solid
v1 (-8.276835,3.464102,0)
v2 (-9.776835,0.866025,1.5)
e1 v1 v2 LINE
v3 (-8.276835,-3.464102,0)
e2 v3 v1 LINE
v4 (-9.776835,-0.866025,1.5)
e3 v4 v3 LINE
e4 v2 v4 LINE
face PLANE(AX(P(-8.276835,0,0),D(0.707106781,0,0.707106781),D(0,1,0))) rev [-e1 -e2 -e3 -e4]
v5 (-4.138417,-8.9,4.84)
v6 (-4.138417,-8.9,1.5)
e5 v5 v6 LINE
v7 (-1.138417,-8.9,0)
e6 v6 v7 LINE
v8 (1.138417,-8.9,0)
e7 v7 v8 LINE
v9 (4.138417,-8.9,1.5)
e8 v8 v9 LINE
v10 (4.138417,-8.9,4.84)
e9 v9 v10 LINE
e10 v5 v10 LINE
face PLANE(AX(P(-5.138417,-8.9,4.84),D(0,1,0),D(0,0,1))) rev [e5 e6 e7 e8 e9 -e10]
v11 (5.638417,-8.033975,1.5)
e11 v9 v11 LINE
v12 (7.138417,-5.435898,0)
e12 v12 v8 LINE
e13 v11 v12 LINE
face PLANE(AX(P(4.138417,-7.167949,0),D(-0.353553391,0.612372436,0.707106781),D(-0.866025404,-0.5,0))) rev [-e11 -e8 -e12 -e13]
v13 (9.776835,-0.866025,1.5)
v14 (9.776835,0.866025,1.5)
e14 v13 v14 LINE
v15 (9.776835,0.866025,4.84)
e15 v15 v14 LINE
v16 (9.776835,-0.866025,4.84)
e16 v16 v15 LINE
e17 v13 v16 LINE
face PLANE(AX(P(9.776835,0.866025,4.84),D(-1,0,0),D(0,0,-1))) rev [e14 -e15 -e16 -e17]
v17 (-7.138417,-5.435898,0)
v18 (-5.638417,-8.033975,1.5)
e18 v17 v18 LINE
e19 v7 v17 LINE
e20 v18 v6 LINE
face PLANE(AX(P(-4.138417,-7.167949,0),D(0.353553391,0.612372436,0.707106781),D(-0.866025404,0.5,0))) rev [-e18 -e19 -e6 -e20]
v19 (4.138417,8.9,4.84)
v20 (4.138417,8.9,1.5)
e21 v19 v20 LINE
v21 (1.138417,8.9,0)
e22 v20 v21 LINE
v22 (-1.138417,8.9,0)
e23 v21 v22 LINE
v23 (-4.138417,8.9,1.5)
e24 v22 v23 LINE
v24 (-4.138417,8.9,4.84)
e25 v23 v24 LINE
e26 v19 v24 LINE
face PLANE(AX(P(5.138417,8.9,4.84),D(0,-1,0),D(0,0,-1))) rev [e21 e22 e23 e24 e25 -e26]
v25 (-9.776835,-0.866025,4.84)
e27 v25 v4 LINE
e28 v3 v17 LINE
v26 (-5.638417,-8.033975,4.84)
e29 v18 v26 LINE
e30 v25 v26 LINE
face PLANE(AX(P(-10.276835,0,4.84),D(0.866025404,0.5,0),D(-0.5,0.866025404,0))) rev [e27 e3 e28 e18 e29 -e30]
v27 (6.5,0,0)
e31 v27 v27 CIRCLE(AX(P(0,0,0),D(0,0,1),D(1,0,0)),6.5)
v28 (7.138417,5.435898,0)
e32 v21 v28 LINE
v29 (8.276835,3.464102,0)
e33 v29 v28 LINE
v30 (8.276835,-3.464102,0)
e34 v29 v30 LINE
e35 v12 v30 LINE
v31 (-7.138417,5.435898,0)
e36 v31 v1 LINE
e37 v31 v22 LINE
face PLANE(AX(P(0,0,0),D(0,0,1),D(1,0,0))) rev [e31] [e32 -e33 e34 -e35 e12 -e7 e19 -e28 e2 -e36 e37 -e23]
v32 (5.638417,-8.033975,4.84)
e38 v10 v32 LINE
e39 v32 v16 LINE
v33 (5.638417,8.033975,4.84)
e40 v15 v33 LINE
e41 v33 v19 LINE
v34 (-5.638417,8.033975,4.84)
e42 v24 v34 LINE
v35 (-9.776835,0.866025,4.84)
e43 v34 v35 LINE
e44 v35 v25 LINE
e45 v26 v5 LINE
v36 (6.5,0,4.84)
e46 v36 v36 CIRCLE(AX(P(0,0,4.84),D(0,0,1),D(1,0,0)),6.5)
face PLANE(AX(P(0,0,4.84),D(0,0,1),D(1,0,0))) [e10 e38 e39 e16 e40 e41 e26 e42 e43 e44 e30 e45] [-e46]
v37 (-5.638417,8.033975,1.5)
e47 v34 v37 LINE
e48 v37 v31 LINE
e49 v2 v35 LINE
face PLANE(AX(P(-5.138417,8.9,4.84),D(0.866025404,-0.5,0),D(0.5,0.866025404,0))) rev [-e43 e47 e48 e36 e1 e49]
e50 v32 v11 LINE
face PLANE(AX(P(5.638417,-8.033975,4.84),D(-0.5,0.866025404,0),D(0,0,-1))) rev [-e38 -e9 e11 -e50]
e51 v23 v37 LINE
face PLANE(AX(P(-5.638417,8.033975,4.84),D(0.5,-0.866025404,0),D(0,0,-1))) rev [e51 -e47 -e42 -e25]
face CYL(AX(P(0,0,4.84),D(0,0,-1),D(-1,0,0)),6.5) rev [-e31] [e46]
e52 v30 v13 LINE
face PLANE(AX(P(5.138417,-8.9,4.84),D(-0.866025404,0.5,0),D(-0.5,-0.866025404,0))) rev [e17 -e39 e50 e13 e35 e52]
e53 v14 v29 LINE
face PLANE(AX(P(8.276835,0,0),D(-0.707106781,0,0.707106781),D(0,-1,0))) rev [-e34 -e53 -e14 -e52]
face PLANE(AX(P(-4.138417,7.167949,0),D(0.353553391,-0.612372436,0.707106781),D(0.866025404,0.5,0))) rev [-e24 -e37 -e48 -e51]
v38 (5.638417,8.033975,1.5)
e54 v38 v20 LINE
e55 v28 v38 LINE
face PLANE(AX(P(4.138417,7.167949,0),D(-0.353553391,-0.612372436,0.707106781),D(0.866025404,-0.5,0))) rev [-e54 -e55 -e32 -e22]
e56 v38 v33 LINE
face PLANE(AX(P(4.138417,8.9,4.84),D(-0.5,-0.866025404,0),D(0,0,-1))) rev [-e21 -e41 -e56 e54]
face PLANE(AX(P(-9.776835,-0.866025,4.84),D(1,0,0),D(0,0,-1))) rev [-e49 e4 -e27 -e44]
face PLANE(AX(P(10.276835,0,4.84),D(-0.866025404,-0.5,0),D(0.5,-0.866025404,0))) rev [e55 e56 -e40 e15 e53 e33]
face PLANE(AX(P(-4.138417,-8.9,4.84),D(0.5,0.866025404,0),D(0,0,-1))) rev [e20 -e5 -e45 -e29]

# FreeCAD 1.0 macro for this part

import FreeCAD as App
import Part
import Sketcher
from FreeCAD import Vector
Q = App.Units.Quantity


def edges_at(feature, points):
    """Names of the edges that pass closest to the given points."""
    edges = feature.Shape.Edges
    near = lambda p: min(range(len(edges)), key=lambda i: edges[i].distToShape(Part.Vertex(*p))[0])
    return sorted({f"Edge{near(p) + 1}" for p in points})

doc = App.newDocument("Part")
body = doc.addObject("PartDesign::Body", "Body")

sketch1 = body.newObject("Sketcher::SketchObject", "Sketch")
sketch1.AttachmentSupport = (doc.getObject("XY_Plane"), [""])
sketch1.MapMode = "FlatFace"
sketch1.addGeometry([
    Part.LineSegment(Vector(5, 9, 0), Vector(-5, 9, 0)),
    Part.LineSegment(Vector(-5, 9, 0), Vector(-10, 0, 0)),
    Part.LineSegment(Vector(-10, 0, 0), Vector(-5, -9, 0)),
    Part.LineSegment(Vector(-5, -9, 0), Vector(5, -9, 0)),
    Part.LineSegment(Vector(5, -9, 0), Vector(10, 0, 0)),
    Part.LineSegment(Vector(10, 0, 0), Vector(5, 9, 0)),
    Part.Circle(Vector(0, 0, 0), Vector(0, 0, 1), 6),
], False)
sketch1.addConstraint([
    Sketcher.Constraint("Coincident", 0, 2, 1, 1),
    Sketcher.Constraint("Coincident", 1, 2, 2, 1),
    Sketcher.Constraint("Coincident", 2, 2, 3, 1),
    Sketcher.Constraint("Coincident", 3, 2, 4, 1),
    Sketcher.Constraint("Coincident", 4, 2, 5, 1),
    Sketcher.Constraint("Coincident", 5, 2, 0, 1),
    Sketcher.Constraint("Horizontal", 0),
    Sketcher.Constraint("Horizontal", 3),
    Sketcher.Constraint("Coincident", 6, 3, -1, 1),
    Sketcher.Constraint("Symmetric", 0, 2, 3, 2, -1, 1),
    Sketcher.Constraint("Symmetric", 1, 2, 4, 2, -1, 1),
    Sketcher.Constraint("PointOnObject", 1, 2, -1),
    Sketcher.Constraint("Parallel", 2, 5),
    Sketcher.Constraint("Vertical", 0, 2, 2, 2),
    Sketcher.Constraint("Diameter", 6, Q("13 mm")),
    Sketcher.Constraint("Angle", 1, Q("-120 deg")),
    Sketcher.Constraint("DistanceY", -1, 1, 0, 2, Q("8.9 mm")),
    Sketcher.Constraint("DistanceX", 0, 2, 0, 1, Q("10.276835 mm")),
])
pad1 = body.newObject("PartDesign::Pad", "Pad")
pad1.Profile = sketch1
pad1.Length = 4.84
doc.recompute()

chamfer = body.newObject("PartDesign::Chamfer", "Chamfer")
chamfer.Base = (pad1, edges_at(pad1, [
    (10.277, 0, 2.42),
    (5.138, -8.9, 2.42),
    (-5.138, -8.9, 2.42),
    (-10.277, 0, 2.42),
    (-5.138, 8.9, 2.42),
    (5.138, 8.9, 2.42),
]))
chamfer.Size = 1
doc.recompute()

chamfer2 = body.newObject("PartDesign::Chamfer", "Chamfer001")
chamfer2.Base = (chamfer, edges_at(chamfer, [
    (4.888, 8.467, 0),
    (9.777, 0, 0),
    (-4.888, 8.467, 0),
    (-9.777, 0, 0),
    (-4.888, -8.467, 0),
    (4.888, -8.467, 0),
]))
chamfer2.Size = 1.5

doc.recompute()
